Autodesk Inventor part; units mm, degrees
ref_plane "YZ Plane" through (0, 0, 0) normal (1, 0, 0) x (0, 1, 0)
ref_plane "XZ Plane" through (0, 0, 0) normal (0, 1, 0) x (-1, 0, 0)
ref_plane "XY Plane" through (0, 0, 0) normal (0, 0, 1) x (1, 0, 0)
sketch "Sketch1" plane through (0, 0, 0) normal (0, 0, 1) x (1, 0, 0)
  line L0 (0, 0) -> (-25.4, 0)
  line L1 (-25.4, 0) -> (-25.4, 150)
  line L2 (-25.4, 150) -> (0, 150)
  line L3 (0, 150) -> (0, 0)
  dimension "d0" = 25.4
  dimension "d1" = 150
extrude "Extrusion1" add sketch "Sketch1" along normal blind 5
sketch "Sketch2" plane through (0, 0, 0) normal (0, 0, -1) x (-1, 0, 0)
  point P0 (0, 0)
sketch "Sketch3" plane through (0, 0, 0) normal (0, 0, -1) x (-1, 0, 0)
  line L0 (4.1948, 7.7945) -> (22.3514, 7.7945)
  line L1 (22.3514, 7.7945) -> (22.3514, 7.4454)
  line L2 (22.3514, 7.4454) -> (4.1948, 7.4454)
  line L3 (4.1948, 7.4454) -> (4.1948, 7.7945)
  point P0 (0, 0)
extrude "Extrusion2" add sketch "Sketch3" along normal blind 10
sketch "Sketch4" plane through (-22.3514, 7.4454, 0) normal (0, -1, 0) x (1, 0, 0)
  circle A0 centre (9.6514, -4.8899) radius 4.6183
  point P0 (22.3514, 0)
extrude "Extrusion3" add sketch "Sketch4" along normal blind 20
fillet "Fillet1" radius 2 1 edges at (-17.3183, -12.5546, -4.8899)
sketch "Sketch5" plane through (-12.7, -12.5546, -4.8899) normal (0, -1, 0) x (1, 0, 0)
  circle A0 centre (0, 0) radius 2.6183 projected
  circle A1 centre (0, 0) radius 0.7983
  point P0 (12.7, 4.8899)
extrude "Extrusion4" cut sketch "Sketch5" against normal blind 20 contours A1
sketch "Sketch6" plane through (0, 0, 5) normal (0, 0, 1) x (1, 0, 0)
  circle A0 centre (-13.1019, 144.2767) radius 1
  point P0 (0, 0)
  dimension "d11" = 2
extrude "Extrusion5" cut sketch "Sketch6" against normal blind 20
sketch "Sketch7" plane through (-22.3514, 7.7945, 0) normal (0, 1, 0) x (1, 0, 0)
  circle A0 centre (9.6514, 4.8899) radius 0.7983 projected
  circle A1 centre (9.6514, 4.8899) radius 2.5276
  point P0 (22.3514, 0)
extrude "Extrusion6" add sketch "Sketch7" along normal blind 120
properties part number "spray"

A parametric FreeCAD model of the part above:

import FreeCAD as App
import Part
import Sketcher

V = App.Vector


def edges_at(feature, points):
    """Names of the edges that pass closest to the given points."""
    edges = feature.Shape.Edges
    near = lambda p: min(range(len(edges)), key=lambda i: edges[i].distToShape(Part.Vertex(*p))[0])
    return sorted({f"Edge{near(p) + 1}" for p in points})


def add_polygon(sketch, points):
    """Adds a closed chain of lines whose ends are joined by coincident constraints."""
    first, n = sketch.GeometryCount, len(points)
    for a, b in zip(points, points[1:] + points[:1]):
        sketch.addGeometry(Part.LineSegment(App.Vector(*a, 0), App.Vector(*b, 0)), False)
    for i in range(n):
        sketch.addConstraint(Sketcher.Constraint("Coincident", first + i, 2, first + (i + 1) % n, 1))

doc = App.newDocument("Part")
body = doc.addObject("PartDesign::Body", "Body")

# Sketch on XY plane
sketch1 = body.newObject("Sketcher::SketchObject", "Sketch")
sketch1.AttachmentSupport = (doc.getObject("XY_Plane"), [""])
sketch1.MapMode = "FlatFace"
add_polygon(sketch1, [(-25, 0), (0, 0), (0, 150), (-25, 150)])  # lines 0-3
sketch1.addConstraint([
    Sketcher.Constraint("Horizontal", 0),
    Sketcher.Constraint("Vertical", 1),
    Sketcher.Constraint("Horizontal", 2),
    Sketcher.Constraint("Vertical", 3),
    Sketcher.Constraint("Coincident", 0, 2, -1, 1),
    Sketcher.Constraint("DistanceY", 1, 1, 1, 2, 150.0),
    Sketcher.Constraint("DistanceX", 0, 1, 0, 2, 25.4),
])
pad1 = body.newObject("PartDesign::Pad", "Pad")
pad1.Profile = sketch1
pad1.Length = 5

# Sketch on XY plane
sketch2 = body.newObject("Sketcher::SketchObject", "Sketch001")
sketch2.AttachmentSupport = (doc.getObject("XY_Plane"), [""])
sketch2.MapMode = "FlatFace"
add_polygon(sketch2, [(-22.35, 7.79), (-4.19, 7.79), (-4.19, 7.45), (-22.35, 7.45)])  # lines 0-3
sketch2.addConstraint([
    Sketcher.Constraint("Horizontal", 0),
    Sketcher.Constraint("Vertical", 1),
    Sketcher.Constraint("Horizontal", 2),
    Sketcher.Constraint("Vertical", 3),
    Sketcher.Constraint("DistanceY", 1, 2, 1, 1, 0.349),
    Sketcher.Constraint("DistanceX", 0, 1, 0, 2, 18.1566),
    Sketcher.Constraint("DistanceX", 0, 2, -1, 1, 4.1948),
    Sketcher.Constraint("DistanceY", -1, 1, 0, 2, 7.7945),
])
pad2 = body.newObject("PartDesign::Pad", "Pad001")
pad2.Profile = sketch2
pad2.Length = 10
pad2.Reversed = True

# Sketch on XZ plane
sketch3 = body.newObject("Sketcher::SketchObject", "Sketch002")
sketch3.AttachmentSupport = (doc.getObject("XZ_Plane"), [""])
sketch3.MapMode = "FlatFace"
sketch3.AttachmentOffset = App.Placement(V(0, 0, -7.4454), App.Rotation())
sketch3.addGeometry(Part.Circle(V(-12.7, -4.9, 0), V(0, 0, 1), 4.6), False)
sketch3.addConstraint([
    Sketcher.Constraint("Diameter", 0, 9.2366),
    Sketcher.Constraint("DistanceX", 0, 3, -1, 1, 12.7),
    Sketcher.Constraint("DistanceY", 0, 3, -1, 1, 4.89),
])
pad3 = body.newObject("PartDesign::Pad", "Pad002")
pad3.Profile = sketch3
pad3.Length = 20
doc.recompute()

fillet = body.newObject("PartDesign::Fillet", "Fillet")
fillet.Base = (pad3, edges_at(pad3, [(-17.318, -12.555, -4.89)]))
fillet.Radius = 2

# Sketch on XZ plane
sketch4 = body.newObject("Sketcher::SketchObject", "Sketch003")
sketch4.AttachmentSupport = (doc.getObject("XZ_Plane"), [""])
sketch4.MapMode = "FlatFace"
sketch4.AttachmentOffset = App.Placement(V(0, 0, 12.5546), App.Rotation())
sketch4.addGeometry(Part.Circle(V(-12.7, -4.9, 0), V(0, 0, 1), 0.8), False)
sketch4.addConstraint([
    Sketcher.Constraint("Diameter", 0, 1.5966),
    Sketcher.Constraint("DistanceX", 0, 3, -1, 1, 12.7),
    Sketcher.Constraint("DistanceY", 0, 3, -1, 1, 4.89),
])
pocket1 = body.newObject("PartDesign::Pocket", "Pocket")
pocket1.Profile = sketch4
pocket1.Length = 20

# Sketch on XY plane
sketch5 = body.newObject("Sketcher::SketchObject", "Sketch004")
sketch5.AttachmentSupport = (doc.getObject("XY_Plane"), [""])
sketch5.MapMode = "FlatFace"
sketch5.AttachmentOffset = App.Placement(V(0, 0, 5), App.Rotation())
sketch5.addGeometry(Part.Circle(V(-13.1, 144.3, 0), V(0, 0, 1), 1), False)
sketch5.addConstraint([
    Sketcher.Constraint("Diameter", 0, 2.0),
    Sketcher.Constraint("DistanceX", 0, 3, -1, 1, 13.102),
    Sketcher.Constraint("DistanceY", -1, 1, 0, 3, 144.2767),
])
pocket2 = body.newObject("PartDesign::Pocket", "Pocket001")
pocket2.Profile = sketch5
pocket2.Length = 20

# Sketch on XZ plane
sketch6 = body.newObject("Sketcher::SketchObject", "Sketch005")
sketch6.AttachmentSupport = (doc.getObject("XZ_Plane"), [""])
sketch6.MapMode = "FlatFace"
sketch6.AttachmentOffset = App.Placement(V(0, 0, -7.7945), App.Rotation())
sketch6.addGeometry([
    Part.Circle(V(-12.7, -4.9, 0), V(0, 0, 1), 2.5),
    Part.Circle(V(-12.7, -4.9, 0), V(0, 0, 1), 0.8),
], False)
sketch6.addConstraint([
    Sketcher.Constraint("Coincident", 1, 3, 0, 3),
    Sketcher.Constraint("Diameter", 0, 5.0552),
    Sketcher.Constraint("Diameter", 1, 1.5966),
    Sketcher.Constraint("DistanceX", 0, 3, -1, 1, 12.7),
    Sketcher.Constraint("DistanceY", 0, 3, -1, 1, 4.89),
])
pad4 = body.newObject("PartDesign::Pad", "Pad003")
pad4.Profile = sketch6
pad4.Length = 120
pad4.Reversed = True

doc.recompute()
